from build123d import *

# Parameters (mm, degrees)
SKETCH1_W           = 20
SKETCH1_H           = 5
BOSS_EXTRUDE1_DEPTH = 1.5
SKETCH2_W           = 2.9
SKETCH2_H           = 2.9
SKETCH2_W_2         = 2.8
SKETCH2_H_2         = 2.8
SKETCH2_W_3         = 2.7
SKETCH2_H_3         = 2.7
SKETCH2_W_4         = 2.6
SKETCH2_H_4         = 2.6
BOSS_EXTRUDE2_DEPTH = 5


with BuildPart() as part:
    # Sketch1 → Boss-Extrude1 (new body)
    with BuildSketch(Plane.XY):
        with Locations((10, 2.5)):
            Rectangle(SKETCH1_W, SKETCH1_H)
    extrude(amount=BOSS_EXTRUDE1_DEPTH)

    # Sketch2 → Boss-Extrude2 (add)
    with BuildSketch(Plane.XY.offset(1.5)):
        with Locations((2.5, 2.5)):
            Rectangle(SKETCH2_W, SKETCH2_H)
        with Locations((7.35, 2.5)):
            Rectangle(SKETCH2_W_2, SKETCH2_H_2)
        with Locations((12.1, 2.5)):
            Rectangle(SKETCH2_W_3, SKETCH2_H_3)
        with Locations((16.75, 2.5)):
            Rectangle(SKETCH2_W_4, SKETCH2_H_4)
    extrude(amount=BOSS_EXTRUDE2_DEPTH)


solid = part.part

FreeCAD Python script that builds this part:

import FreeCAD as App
import Part
import Sketcher

doc = App.newDocument("Part")
body = doc.addObject("PartDesign::Body", "Body")

# Sketch on XY plane
sketch1 = body.newObject("Sketcher::SketchObject", "Sketch")
sketch1.AttachmentSupport = (doc.getObject("XY_Plane"), [""])
sketch1.MapMode = "FlatFace"
sketch1.addGeometry(Part.LineSegment(App.Vector(0, 5, 0), App.Vector(0, 0, 0)), False)
sketch1.addGeometry(Part.LineSegment(App.Vector(0, 0, 0), App.Vector(20, 0, 0)), False)
sketch1.addGeometry(Part.LineSegment(App.Vector(20, 0, 0), App.Vector(20, 5, 0)), False)
sketch1.addGeometry(Part.LineSegment(App.Vector(20, 5, 0), App.Vector(0, 5, 0)), False)
sketch1.addConstraint(Sketcher.Constraint("Coincident", 0, 2, 1, 1))
sketch1.addConstraint(Sketcher.Constraint("Coincident", 1, 2, 2, 1))
sketch1.addConstraint(Sketcher.Constraint("Coincident", 2, 2, 3, 1))
sketch1.addConstraint(Sketcher.Constraint("Coincident", 3, 2, 0, 1))
sketch1.addConstraint(Sketcher.Constraint("Vertical", 0))
sketch1.addConstraint(Sketcher.Constraint("Horizontal", 1))
sketch1.addConstraint(Sketcher.Constraint("Vertical", 2))
sketch1.addConstraint(Sketcher.Constraint("Horizontal", 3))
sketch1.addConstraint(Sketcher.Constraint("Coincident", 0, 2, -1, 1))
sketch1.addConstraint(Sketcher.Constraint("DistanceX", 1, 1, 1, 2, 20.0))
sketch1.addConstraint(Sketcher.Constraint("DistanceY", 0, 2, 0, 1, 5.0))
pad1 = body.newObject("PartDesign::Pad", "Pad")
pad1.Profile = sketch1
pad1.Length = 1.5

# Sketch on XY plane
sketch2 = body.newObject("Sketcher::SketchObject", "Sketch001")
sketch2.AttachmentSupport = (doc.getObject("XY_Plane"), [""])
sketch2.MapMode = "FlatFace"
sketch2.AttachmentOffset = App.Placement(App.Vector(0, 0, 1.5), App.Rotation())
sketch2.addGeometry(Part.LineSegment(App.Vector(1.1, 4, 0), App.Vector(1.1, 1.1, 0)), False)
sketch2.addGeometry(Part.LineSegment(App.Vector(1.1, 1.1, 0), App.Vector(4, 1.1, 0)), False)
sketch2.addGeometry(Part.LineSegment(App.Vector(4, 1.1, 0), App.Vector(4, 4, 0)), False)
sketch2.addGeometry(Part.LineSegment(App.Vector(4, 4, 0), App.Vector(1.1, 4, 0)), False)
sketch2.addGeometry(Part.LineSegment(App.Vector(6, 3.9, 0), App.Vector(6, 1.1, 0)), False)
sketch2.addGeometry(Part.LineSegment(App.Vector(6, 1.1, 0), App.Vector(8.8, 1.1, 0)), False)
sketch2.addGeometry(Part.LineSegment(App.Vector(8.8, 1.1, 0), App.Vector(8.8, 3.9, 0)), False)
sketch2.addGeometry(Part.LineSegment(App.Vector(8.8, 3.9, 0), App.Vector(6, 3.9, 0)), False)
sketch2.addGeometry(Part.LineSegment(App.Vector(10.8, 3.9, 0), App.Vector(10.8, 1.1, 0)), False)
sketch2.addGeometry(Part.LineSegment(App.Vector(10.8, 1.1, 0), App.Vector(13.4, 1.1, 0)), False)
sketch2.addGeometry(Part.LineSegment(App.Vector(13.4, 1.1, 0), App.Vector(13.4, 3.9, 0)), False)
sketch2.addGeometry(Part.LineSegment(App.Vector(13.4, 3.9, 0), App.Vector(10.8, 3.9, 0)), False)
sketch2.addGeometry(Part.LineSegment(App.Vector(15.4, 3.8, 0), App.Vector(15.4, 1.2, 0)), False)
sketch2.addGeometry(Part.LineSegment(App.Vector(15.4, 1.2, 0), App.Vector(18.1, 1.2, 0)), False)
sketch2.addGeometry(Part.LineSegment(App.Vector(18.1, 1.2, 0), App.Vector(18.1, 3.8, 0)), False)
sketch2.addGeometry(Part.LineSegment(App.Vector(18.1, 3.8, 0), App.Vector(15.4, 3.8, 0)), False)
sketch2.addConstraint(Sketcher.Constraint("Coincident", 0, 2, 1, 1))
sketch2.addConstraint(Sketcher.Constraint("Coincident", 1, 2, 2, 1))
sketch2.addConstraint(Sketcher.Constraint("Coincident", 2, 2, 3, 1))
sketch2.addConstraint(Sketcher.Constraint("Coincident", 3, 2, 0, 1))
sketch2.addConstraint(Sketcher.Constraint("Coincident", 4, 2, 5, 1))
sketch2.addConstraint(Sketcher.Constraint("Coincident", 5, 2, 6, 1))
sketch2.addConstraint(Sketcher.Constraint("Coincident", 6, 2, 7, 1))
sketch2.addConstraint(Sketcher.Constraint("Coincident", 7, 2, 4, 1))
sketch2.addConstraint(Sketcher.Constraint("Coincident", 8, 2, 9, 1))
sketch2.addConstraint(Sketcher.Constraint("Coincident", 9, 2, 10, 1))
sketch2.addConstraint(Sketcher.Constraint("Coincident", 10, 2, 11, 1))
sketch2.addConstraint(Sketcher.Constraint("Coincident", 11, 2, 8, 1))
sketch2.addConstraint(Sketcher.Constraint("Coincident", 12, 2, 13, 1))
sketch2.addConstraint(Sketcher.Constraint("Coincident", 13, 2, 14, 1))
sketch2.addConstraint(Sketcher.Constraint("Coincident", 14, 2, 15, 1))
sketch2.addConstraint(Sketcher.Constraint("Coincident", 15, 2, 12, 1))
sketch2.addConstraint(Sketcher.Constraint("Vertical", 0))
sketch2.addConstraint(Sketcher.Constraint("Horizontal", 1))
sketch2.addConstraint(Sketcher.Constraint("Vertical", 2))
sketch2.addConstraint(Sketcher.Constraint("Horizontal", 3))
sketch2.addConstraint(Sketcher.Constraint("Vertical", 4))
sketch2.addConstraint(Sketcher.Constraint("Horizontal", 5))
sketch2.addConstraint(Sketcher.Constraint("Vertical", 6))
sketch2.addConstraint(Sketcher.Constraint("Horizontal", 7))
sketch2.addConstraint(Sketcher.Constraint("Vertical", 8))
sketch2.addConstraint(Sketcher.Constraint("Horizontal", 9))
sketch2.addConstraint(Sketcher.Constraint("Vertical", 10))
sketch2.addConstraint(Sketcher.Constraint("Horizontal", 11))
sketch2.addConstraint(Sketcher.Constraint("Vertical", 12))
sketch2.addConstraint(Sketcher.Constraint("Horizontal", 13))
sketch2.addConstraint(Sketcher.Constraint("Vertical", 14))
sketch2.addConstraint(Sketcher.Constraint("Horizontal", 15))
sketch2.addConstraint(Sketcher.Constraint("Equal", 3, 0))
sketch2.addConstraint(Sketcher.Constraint("Equal", 7, 4))
sketch2.addConstraint(Sketcher.Constraint("Equal", 11, 8))
sketch2.addConstraint(Sketcher.Constraint("Equal", 15, 12))
sketch2.addConstraint(Sketcher.Constraint("DistanceX", 1, 1, 1, 2, 2.9))
sketch2.addConstraint(Sketcher.Constraint("DistanceX", 5, 1, 5, 2, 2.8))
sketch2.addConstraint(Sketcher.Constraint("DistanceX", 9, 1, 9, 2, 2.7))
sketch2.addConstraint(Sketcher.Constraint("DistanceX", 13, 1, 13, 2, 2.6))
sketch2.addConstraint(Sketcher.Constraint("DistanceX", 1, 2, 4, 2, 2.0))
sketch2.addConstraint(Sketcher.Constraint("DistanceX", 5, 2, 8, 2, 2.0))
sketch2.addConstraint(Sketcher.Constraint("DistanceX", 9, 2, 12, 2, 2.0))
sketch2.addConstraint(Sketcher.Constraint("DistanceY", -1, 1, 4, 2, 1.1))
sketch2.addConstraint(Sketcher.Constraint("DistanceY", -1, 1, 12, 2, 1.2))
sketch2.addConstraint(Sketcher.Constraint("DistanceY", 1, 2, 8, 2, 0.1))
sketch2.addConstraint(Sketcher.Constraint("DistanceX", -1, 1, 0, 2, 1.05))
sketch2.addConstraint(Sketcher.Constraint("DistanceY", -1, 1, 0, 2, 1.05))
pad2 = body.newObject("PartDesign::Pad", "Pad001")
pad2.Profile = sketch2
pad2.Length = 5

doc.recompute()
